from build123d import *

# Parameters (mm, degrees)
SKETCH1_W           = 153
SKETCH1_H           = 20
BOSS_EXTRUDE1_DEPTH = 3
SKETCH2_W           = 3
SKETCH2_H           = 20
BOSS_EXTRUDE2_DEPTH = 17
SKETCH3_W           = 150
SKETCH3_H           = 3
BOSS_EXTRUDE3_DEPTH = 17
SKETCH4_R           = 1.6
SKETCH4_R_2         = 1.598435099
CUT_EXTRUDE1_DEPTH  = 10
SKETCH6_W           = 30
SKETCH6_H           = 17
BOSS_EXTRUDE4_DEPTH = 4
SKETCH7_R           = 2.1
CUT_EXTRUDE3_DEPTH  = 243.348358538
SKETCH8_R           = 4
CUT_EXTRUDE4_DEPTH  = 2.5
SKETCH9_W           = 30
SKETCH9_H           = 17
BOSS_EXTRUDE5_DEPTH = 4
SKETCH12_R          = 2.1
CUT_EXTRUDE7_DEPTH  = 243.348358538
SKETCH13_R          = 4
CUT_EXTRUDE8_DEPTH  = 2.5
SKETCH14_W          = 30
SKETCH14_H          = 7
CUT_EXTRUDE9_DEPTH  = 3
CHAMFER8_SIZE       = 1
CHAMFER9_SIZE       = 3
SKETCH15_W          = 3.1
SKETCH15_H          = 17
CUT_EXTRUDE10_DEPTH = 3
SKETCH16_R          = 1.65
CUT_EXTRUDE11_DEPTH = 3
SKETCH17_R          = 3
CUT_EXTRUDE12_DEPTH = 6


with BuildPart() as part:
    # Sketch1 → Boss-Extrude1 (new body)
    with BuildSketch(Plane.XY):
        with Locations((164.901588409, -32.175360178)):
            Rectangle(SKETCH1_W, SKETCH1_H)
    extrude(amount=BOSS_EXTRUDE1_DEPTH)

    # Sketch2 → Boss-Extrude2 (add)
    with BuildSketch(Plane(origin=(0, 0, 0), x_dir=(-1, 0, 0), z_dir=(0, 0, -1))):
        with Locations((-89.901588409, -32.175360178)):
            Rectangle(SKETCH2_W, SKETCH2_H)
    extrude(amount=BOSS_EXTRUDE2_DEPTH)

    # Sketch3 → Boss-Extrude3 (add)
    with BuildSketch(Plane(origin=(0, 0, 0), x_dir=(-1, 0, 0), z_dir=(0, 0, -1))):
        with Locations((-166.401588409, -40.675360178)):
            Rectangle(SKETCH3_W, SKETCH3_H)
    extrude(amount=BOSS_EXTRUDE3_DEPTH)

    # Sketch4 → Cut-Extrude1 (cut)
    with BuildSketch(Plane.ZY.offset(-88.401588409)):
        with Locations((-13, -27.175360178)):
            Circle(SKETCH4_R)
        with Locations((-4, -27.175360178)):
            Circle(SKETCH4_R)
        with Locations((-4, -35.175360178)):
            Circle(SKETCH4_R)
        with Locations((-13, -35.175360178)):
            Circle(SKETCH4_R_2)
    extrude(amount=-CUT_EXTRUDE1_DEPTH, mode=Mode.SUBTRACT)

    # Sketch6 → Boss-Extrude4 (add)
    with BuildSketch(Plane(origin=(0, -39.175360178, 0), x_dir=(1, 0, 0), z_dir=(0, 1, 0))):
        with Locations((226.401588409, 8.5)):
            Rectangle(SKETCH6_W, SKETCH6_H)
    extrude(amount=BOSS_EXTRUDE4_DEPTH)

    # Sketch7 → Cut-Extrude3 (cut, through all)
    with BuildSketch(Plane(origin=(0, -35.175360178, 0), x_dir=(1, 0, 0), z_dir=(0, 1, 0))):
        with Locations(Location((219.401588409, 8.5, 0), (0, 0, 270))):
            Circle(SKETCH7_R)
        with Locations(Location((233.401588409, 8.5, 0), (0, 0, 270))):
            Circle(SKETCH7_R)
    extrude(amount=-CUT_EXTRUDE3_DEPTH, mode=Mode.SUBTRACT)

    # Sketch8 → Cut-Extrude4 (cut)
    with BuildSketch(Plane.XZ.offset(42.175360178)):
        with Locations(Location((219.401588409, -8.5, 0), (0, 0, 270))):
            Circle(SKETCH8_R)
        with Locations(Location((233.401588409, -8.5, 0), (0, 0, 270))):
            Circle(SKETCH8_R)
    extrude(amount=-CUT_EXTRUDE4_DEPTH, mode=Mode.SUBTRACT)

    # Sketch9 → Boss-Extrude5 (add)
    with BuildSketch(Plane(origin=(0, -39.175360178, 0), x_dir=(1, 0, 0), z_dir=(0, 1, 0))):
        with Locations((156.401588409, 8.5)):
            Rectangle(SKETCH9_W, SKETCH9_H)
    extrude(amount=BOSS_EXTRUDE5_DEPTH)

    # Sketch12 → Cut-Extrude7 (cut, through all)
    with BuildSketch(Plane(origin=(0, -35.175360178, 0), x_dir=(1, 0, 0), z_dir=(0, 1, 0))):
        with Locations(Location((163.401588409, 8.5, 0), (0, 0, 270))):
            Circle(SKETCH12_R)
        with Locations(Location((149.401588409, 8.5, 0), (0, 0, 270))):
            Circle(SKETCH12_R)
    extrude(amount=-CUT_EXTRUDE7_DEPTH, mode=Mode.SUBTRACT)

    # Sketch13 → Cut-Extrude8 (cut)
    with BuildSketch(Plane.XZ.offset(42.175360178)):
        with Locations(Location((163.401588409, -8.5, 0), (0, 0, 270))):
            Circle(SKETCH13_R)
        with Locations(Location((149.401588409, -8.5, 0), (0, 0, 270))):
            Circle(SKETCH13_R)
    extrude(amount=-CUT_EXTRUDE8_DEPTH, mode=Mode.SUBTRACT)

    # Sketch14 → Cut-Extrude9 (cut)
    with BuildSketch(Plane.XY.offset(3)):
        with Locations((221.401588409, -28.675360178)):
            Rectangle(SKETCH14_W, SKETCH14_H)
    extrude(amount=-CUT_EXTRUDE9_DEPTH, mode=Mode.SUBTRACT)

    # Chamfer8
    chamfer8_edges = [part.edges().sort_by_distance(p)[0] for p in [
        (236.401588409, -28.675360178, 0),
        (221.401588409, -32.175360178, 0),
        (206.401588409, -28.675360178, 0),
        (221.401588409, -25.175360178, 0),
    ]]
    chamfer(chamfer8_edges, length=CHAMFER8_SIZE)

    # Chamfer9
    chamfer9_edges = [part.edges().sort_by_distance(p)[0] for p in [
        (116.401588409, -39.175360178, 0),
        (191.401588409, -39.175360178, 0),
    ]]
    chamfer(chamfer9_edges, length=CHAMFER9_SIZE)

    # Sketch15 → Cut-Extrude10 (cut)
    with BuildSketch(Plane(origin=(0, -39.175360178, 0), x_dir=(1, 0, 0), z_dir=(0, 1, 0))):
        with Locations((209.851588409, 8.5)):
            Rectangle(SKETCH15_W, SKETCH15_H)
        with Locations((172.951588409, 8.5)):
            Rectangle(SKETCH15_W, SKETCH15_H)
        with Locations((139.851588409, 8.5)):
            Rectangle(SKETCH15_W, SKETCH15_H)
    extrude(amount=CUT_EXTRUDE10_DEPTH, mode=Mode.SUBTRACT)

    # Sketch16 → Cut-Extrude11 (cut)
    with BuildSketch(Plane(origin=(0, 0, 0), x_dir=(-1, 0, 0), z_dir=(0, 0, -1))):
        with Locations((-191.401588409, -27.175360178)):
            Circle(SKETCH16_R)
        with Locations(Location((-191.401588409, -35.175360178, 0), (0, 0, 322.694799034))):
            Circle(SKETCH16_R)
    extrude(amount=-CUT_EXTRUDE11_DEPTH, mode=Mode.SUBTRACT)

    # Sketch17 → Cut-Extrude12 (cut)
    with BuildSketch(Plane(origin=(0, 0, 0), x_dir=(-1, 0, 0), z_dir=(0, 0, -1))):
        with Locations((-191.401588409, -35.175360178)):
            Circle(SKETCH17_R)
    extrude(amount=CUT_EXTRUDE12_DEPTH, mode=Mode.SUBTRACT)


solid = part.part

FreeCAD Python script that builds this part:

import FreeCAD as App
import Part
import Sketcher

V = App.Vector


def edges_at(feature, points):
    """Names of the edges that pass closest to the given points."""
    edges = feature.Shape.Edges
    near = lambda p: min(range(len(edges)), key=lambda i: edges[i].distToShape(Part.Vertex(*p))[0])
    return sorted({f"Edge{near(p) + 1}" for p in points})


def add_polygon(sketch, points):
    """Adds a closed chain of lines whose ends are joined by coincident constraints."""
    first, n = sketch.GeometryCount, len(points)
    for a, b in zip(points, points[1:] + points[:1]):
        sketch.addGeometry(Part.LineSegment(App.Vector(*a, 0), App.Vector(*b, 0)), False)
    for i in range(n):
        sketch.addConstraint(Sketcher.Constraint("Coincident", first + i, 2, first + (i + 1) % n, 1))

doc = App.newDocument("Part")
params = doc.addObject("Spreadsheet::Sheet", "Params")
for row, (alias, value) in enumerate([
    ("sketch1_width", "153 mm"),
    ("sketch1_height", "20 mm"),
    ("pad1_length", "3 mm"),
    ("sketch2_width", "3 mm"),
    ("sketch2_height", "20 mm"),
    ("pad2_length", "17 mm"),
    ("sketch3_width", "150 mm"),
    ("sketch3_height", "3 mm"),
    ("pad3_length", "17 mm"),
    ("sketch4_diameter", "3.2 mm"),
    ("pocket1_length", "10 mm"),
    ("sketch5_width", "30 mm"),
    ("sketch5_height", "17 mm"),
    ("pad4_length", "4 mm"),
    ("sketch6_diameter", "4.2 mm"),
    ("sketch7_diameter", "8 mm"),
    ("pocket3_length", "2.5 mm"),
    ("sketch8_width", "30 mm"),
    ("sketch8_height", "17 mm"),
    ("pad5_length", "4 mm"),
    ("sketch9_diameter", "4.2 mm"),
    ("sketch10_diameter", "8 mm"),
    ("pocket5_length", "2.5 mm"),
    ("sketch11_width", "30 mm"),
    ("sketch11_height", "7 mm"),
    ("pocket6_length", "3 mm"),
    ("chamfer_size", "1 mm"),
    ("chamfer2_size", "3 mm"),
    ("sketch12_height", "17 mm"),
    ("sketch12_width", "3.1 mm"),
    ("pocket7_length", "3 mm"),
    ("sketch13_diameter", "3.3 mm"),
    ("pocket8_length", "3 mm"),
    ("sketch14_diameter", "6 mm"),
    ("pocket9_length", "6 mm"),
], start=1):
    params.set(f"A{row}", alias)
    params.set(f"B{row}", "=" + value)
    params.setAlias(f"B{row}", alias)

body = doc.addObject("PartDesign::Body", "Body")

# Sketch on XY plane
sketch1 = body.newObject("Sketcher::SketchObject", "Sketch")
sketch1.AttachmentSupport = (doc.getObject("XY_Plane"), [""])
sketch1.MapMode = "FlatFace"
add_polygon(sketch1, [(88.401588, -22.17536), (88.401588, -42.17536), (241.401588, -42.17536), (241.401588, -22.17536)])  # lines 0-3
sketch1.addConstraint(Sketcher.Constraint("Vertical", 0))
sketch1.addConstraint(Sketcher.Constraint("Horizontal", 1))
sketch1.addConstraint(Sketcher.Constraint("Vertical", 2))
sketch1.addConstraint(Sketcher.Constraint("Horizontal", 3))
sketch1.addConstraint(Sketcher.Constraint("DistanceX", 1, 1, 1, 2, 153.0))
sketch1.addConstraint(Sketcher.Constraint("DistanceY", 0, 2, 0, 1, 20.0))
sketch1.addConstraint(Sketcher.Constraint("DistanceX", -1, 1, 0, 2, 88.401588))
sketch1.addConstraint(Sketcher.Constraint("DistanceY", 0, 2, -1, 1, 42.17536))
sketch1.setExpression("Constraints[8]", "Params.sketch1_width")
sketch1.setExpression("Constraints[9]", "Params.sketch1_height")
pad1 = body.newObject("PartDesign::Pad", "Pad")
pad1.Profile = sketch1
pad1.setExpression("Length", "Params.pad1_length")

# Sketch on XY plane
sketch2 = body.newObject("Sketcher::SketchObject", "Sketch001")
sketch2.AttachmentSupport = (doc.getObject("XY_Plane"), [""])
sketch2.MapMode = "FlatFace"
add_polygon(sketch2, [(91.401588, -22.17536), (91.401588, -42.17536), (88.401588, -42.17536), (88.401588, -22.17536)])  # lines 0-3
sketch2.addConstraint(Sketcher.Constraint("Vertical", 0))
sketch2.addConstraint(Sketcher.Constraint("Horizontal", 1))
sketch2.addConstraint(Sketcher.Constraint("Vertical", 2))
sketch2.addConstraint(Sketcher.Constraint("Horizontal", 3))
sketch2.addConstraint(Sketcher.Constraint("DistanceX", 1, 2, 1, 1, 3.0))
sketch2.addConstraint(Sketcher.Constraint("DistanceY", 0, 2, 0, 1, 20.0))
sketch2.addConstraint(Sketcher.Constraint("DistanceX", -1, 1, 0, 2, 91.401588))
sketch2.addConstraint(Sketcher.Constraint("DistanceY", 0, 2, -1, 1, 42.17536))
sketch2.setExpression("Constraints[8]", "Params.sketch2_width")
sketch2.setExpression("Constraints[9]", "Params.sketch2_height")
pad2 = body.newObject("PartDesign::Pad", "Pad001")
pad2.Profile = sketch2
pad2.setExpression("Length", "Params.pad2_length")
pad2.Reversed = True

# Sketch on XY plane
sketch3 = body.newObject("Sketcher::SketchObject", "Sketch002")
sketch3.AttachmentSupport = (doc.getObject("XY_Plane"), [""])
sketch3.MapMode = "FlatFace"
add_polygon(sketch3, [(241.401588, -39.17536), (241.401588, -42.17536), (91.401588, -42.17536), (91.401588, -39.17536)])  # lines 0-3
sketch3.addConstraint(Sketcher.Constraint("Vertical", 0))
sketch3.addConstraint(Sketcher.Constraint("Horizontal", 1))
sketch3.addConstraint(Sketcher.Constraint("Vertical", 2))
sketch3.addConstraint(Sketcher.Constraint("Horizontal", 3))
sketch3.addConstraint(Sketcher.Constraint("DistanceX", 1, 2, 1, 1, 150.0))
sketch3.addConstraint(Sketcher.Constraint("DistanceY", 0, 2, 0, 1, 3.0))
sketch3.addConstraint(Sketcher.Constraint("DistanceX", -1, 1, 0, 2, 241.401588))
sketch3.addConstraint(Sketcher.Constraint("DistanceY", 0, 2, -1, 1, 42.17536))
sketch3.setExpression("Constraints[8]", "Params.sketch3_width")
sketch3.setExpression("Constraints[9]", "Params.sketch3_height")
pad3 = body.newObject("PartDesign::Pad", "Pad002")
pad3.Profile = sketch3
pad3.setExpression("Length", "Params.pad3_length")
pad3.Reversed = True

# Sketch on YZ plane
sketch4 = body.newObject("Sketcher::SketchObject", "Sketch003")
sketch4.AttachmentSupport = (doc.getObject("YZ_Plane"), [""])
sketch4.MapMode = "FlatFace"
sketch4.AttachmentOffset = App.Placement(V(0, 0, 88.401588), App.Rotation())
sketch4.addGeometry(Part.Circle(V(-27.17536, -13, 0), V(0, 0, 1), 1.6), False)
sketch4.addGeometry(Part.Circle(V(-27.17536, -4, 0), V(0, 0, 1), 1.6), False)
sketch4.addGeometry(Part.Circle(V(-35.17536, -4, 0), V(0, 0, 1), 1.6), False)
sketch4.addGeometry(Part.Circle(V(-35.17536, -13, 0), V(0, 0, 1), 1.598435), False)
sketch4.addConstraint(Sketcher.Constraint("Equal", 0, 1))
sketch4.addConstraint(Sketcher.Constraint("Equal", 1, 2))
sketch4.addConstraint(Sketcher.Constraint("Horizontal", 1, 3, 2, 3))
sketch4.addConstraint(Sketcher.Constraint("Horizontal", 0, 3, 3, 3))
sketch4.addConstraint(Sketcher.Constraint("Vertical", 0, 3, 1, 3))
sketch4.addConstraint(Sketcher.Constraint("Vertical", 2, 3, 3, 3))
sketch4.addConstraint(Sketcher.Constraint("Diameter", 0, 3.2))
sketch4.addConstraint(Sketcher.Constraint("DistanceY", 0, 3, -1, 1, 13.0))
sketch4.addConstraint(Sketcher.Constraint("DistanceY", 1, 3, -1, 1, 4.0))
sketch4.addConstraint(Sketcher.Constraint("DistanceX", 2, 3, 1, 3, 8.0))
sketch4.addConstraint(Sketcher.Constraint("Diameter", 3, 3.19687))
sketch4.addConstraint(Sketcher.Constraint("DistanceX", 0, 3, -1, 1, 27.17536))
sketch4.setExpression("Constraints[6]", "Params.sketch4_diameter")
pocket1 = body.newObject("PartDesign::Pocket", "Pocket")
pocket1.Profile = sketch4
pocket1.setExpression("Length", "Params.pocket1_length")
pocket1.Reversed = True

# Sketch on XZ plane
sketch5 = body.newObject("Sketcher::SketchObject", "Sketch004")
sketch5.AttachmentSupport = (doc.getObject("XZ_Plane"), [""])
sketch5.MapMode = "FlatFace"
sketch5.AttachmentOffset = App.Placement(V(0, 0, 39.17536), App.Rotation())
add_polygon(sketch5, [(211.401588, -17), (211.401588, 0), (241.401588, 0), (241.401588, -17)])  # lines 0-3
sketch5.addConstraint(Sketcher.Constraint("Vertical", 0))
sketch5.addConstraint(Sketcher.Constraint("Horizontal", 1))
sketch5.addConstraint(Sketcher.Constraint("Vertical", 2))
sketch5.addConstraint(Sketcher.Constraint("Horizontal", 3))
sketch5.addConstraint(Sketcher.Constraint("PointOnObject", 0, 2, -1))
sketch5.addConstraint(Sketcher.Constraint("DistanceX", 1, 1, 1, 2, 30.0))
sketch5.addConstraint(Sketcher.Constraint("DistanceY", 0, 1, 0, 2, 17.0))
sketch5.addConstraint(Sketcher.Constraint("DistanceX", -1, 1, 0, 2, 211.401588))
sketch5.setExpression("Constraints[9]", "Params.sketch5_width")
sketch5.setExpression("Constraints[10]", "Params.sketch5_height")
pad4 = body.newObject("PartDesign::Pad", "Pad003")
pad4.Profile = sketch5
pad4.setExpression("Length", "Params.pad4_length")
pad4.Reversed = True

# Sketch on XZ plane
sketch6 = body.newObject("Sketcher::SketchObject", "Sketch005")
sketch6.AttachmentSupport = (doc.getObject("XZ_Plane"), [""])
sketch6.MapMode = "FlatFace"
sketch6.AttachmentOffset = App.Placement(V(0, 0, 35.17536), App.Rotation())
sketch6.addGeometry(Part.Circle(V(219.401588, -8.5, 0), V(0, 0, 1), 2.1), False)
sketch6.addGeometry(Part.Circle(V(233.401588, -8.5, 0), V(0, 0, 1), 2.1), False)
sketch6.addConstraint(Sketcher.Constraint("Equal", 0, 1))
sketch6.addConstraint(Sketcher.Constraint("Horizontal", 0, 3, 1, 3))
sketch6.addConstraint(Sketcher.Constraint("Diameter", 0, 4.2))
sketch6.addConstraint(Sketcher.Constraint("DistanceX", 0, 3, 1, 3, 14.0))
sketch6.addConstraint(Sketcher.Constraint("DistanceY", 0, 3, -1, 1, 8.5))
sketch6.addConstraint(Sketcher.Constraint("DistanceX", -1, 1, 0, 3, 219.401588))
sketch6.setExpression("Constraints[2]", "Params.sketch6_diameter")
pocket2 = body.newObject("PartDesign::Pocket", "Pocket001")
pocket2.Profile = sketch6
pocket2.Type = "ThroughAll"
pocket2.Reversed = True

# Sketch on XZ plane
sketch7 = body.newObject("Sketcher::SketchObject", "Sketch006")
sketch7.AttachmentSupport = (doc.getObject("XZ_Plane"), [""])
sketch7.MapMode = "FlatFace"
sketch7.AttachmentOffset = App.Placement(V(0, 0, 42.17536), App.Rotation())
sketch7.addGeometry(Part.Circle(V(219.401588, -8.5, 0), V(0, 0, 1), 4), False)
sketch7.addGeometry(Part.Circle(V(233.401588, -8.5, 0), V(0, 0, 1), 4), False)
sketch7.addConstraint(Sketcher.Constraint("Equal", 0, 1))
sketch7.addConstraint(Sketcher.Constraint("Horizontal", 0, 3, 1, 3))
sketch7.addConstraint(Sketcher.Constraint("Diameter", 0, 8.0))
sketch7.addConstraint(Sketcher.Constraint("DistanceX", 0, 3, 1, 3, 14.0))
sketch7.addConstraint(Sketcher.Constraint("DistanceY", 0, 3, -1, 1, 8.5))
sketch7.addConstraint(Sketcher.Constraint("DistanceX", -1, 1, 0, 3, 219.401588))
sketch7.setExpression("Constraints[2]", "Params.sketch7_diameter")
pocket3 = body.newObject("PartDesign::Pocket", "Pocket002")
pocket3.Profile = sketch7
pocket3.setExpression("Length", "Params.pocket3_length")

# Sketch on XZ plane
sketch8 = body.newObject("Sketcher::SketchObject", "Sketch007")
sketch8.AttachmentSupport = (doc.getObject("XZ_Plane"), [""])
sketch8.MapMode = "FlatFace"
sketch8.AttachmentOffset = App.Placement(V(0, 0, 39.17536), App.Rotation())
add_polygon(sketch8, [(141.401588, -17), (141.401588, 0), (171.401588, 0), (171.401588, -17)])  # lines 0-3
sketch8.addConstraint(Sketcher.Constraint("Vertical", 0))
sketch8.addConstraint(Sketcher.Constraint("Horizontal", 1))
sketch8.addConstraint(Sketcher.Constraint("Vertical", 2))
sketch8.addConstraint(Sketcher.Constraint("Horizontal", 3))
sketch8.addConstraint(Sketcher.Constraint("PointOnObject", 0, 2, -1))
sketch8.addConstraint(Sketcher.Constraint("DistanceX", 1, 1, 1, 2, 30.0))
sketch8.addConstraint(Sketcher.Constraint("DistanceY", 0, 1, 0, 2, 17.0))
sketch8.addConstraint(Sketcher.Constraint("DistanceX", -1, 1, 0, 2, 141.401588))
sketch8.setExpression("Constraints[9]", "Params.sketch8_width")
sketch8.setExpression("Constraints[10]", "Params.sketch8_height")
pad5 = body.newObject("PartDesign::Pad", "Pad004")
pad5.Profile = sketch8
pad5.setExpression("Length", "Params.pad5_length")
pad5.Reversed = True

# Sketch on XZ plane
sketch9 = body.newObject("Sketcher::SketchObject", "Sketch008")
sketch9.AttachmentSupport = (doc.getObject("XZ_Plane"), [""])
sketch9.MapMode = "FlatFace"
sketch9.AttachmentOffset = App.Placement(V(0, 0, 35.17536), App.Rotation())
sketch9.addGeometry(Part.Circle(V(163.401588, -8.5, 0), V(0, 0, 1), 2.1), False)
sketch9.addGeometry(Part.Circle(V(149.401588, -8.5, 0), V(0, 0, 1), 2.1), False)
sketch9.addConstraint(Sketcher.Constraint("Equal", 0, 1))
sketch9.addConstraint(Sketcher.Constraint("Horizontal", 0, 3, 1, 3))
sketch9.addConstraint(Sketcher.Constraint("Diameter", 0, 4.2))
sketch9.addConstraint(Sketcher.Constraint("DistanceX", 1, 3, 0, 3, 14.0))
sketch9.addConstraint(Sketcher.Constraint("DistanceY", 0, 3, -1, 1, 8.5))
sketch9.addConstraint(Sketcher.Constraint("DistanceX", -1, 1, 0, 3, 163.401588))
sketch9.setExpression("Constraints[2]", "Params.sketch9_diameter")
pocket4 = body.newObject("PartDesign::Pocket", "Pocket003")
pocket4.Profile = sketch9
pocket4.Type = "ThroughAll"
pocket4.Reversed = True

# Sketch on XZ plane
sketch10 = body.newObject("Sketcher::SketchObject", "Sketch009")
sketch10.AttachmentSupport = (doc.getObject("XZ_Plane"), [""])
sketch10.MapMode = "FlatFace"
sketch10.AttachmentOffset = App.Placement(V(0, 0, 42.17536), App.Rotation())
sketch10.addGeometry(Part.Circle(V(163.401588, -8.5, 0), V(0, 0, 1), 4), False)
sketch10.addGeometry(Part.Circle(V(149.401588, -8.5, 0), V(0, 0, 1), 4), False)
sketch10.addConstraint(Sketcher.Constraint("Equal", 0, 1))
sketch10.addConstraint(Sketcher.Constraint("Horizontal", 0, 3, 1, 3))
sketch10.addConstraint(Sketcher.Constraint("Diameter", 0, 8.0))
sketch10.addConstraint(Sketcher.Constraint("DistanceX", 1, 3, 0, 3, 14.0))
sketch10.addConstraint(Sketcher.Constraint("DistanceY", 0, 3, -1, 1, 8.5))
sketch10.addConstraint(Sketcher.Constraint("DistanceX", -1, 1, 0, 3, 163.401588))
sketch10.setExpression("Constraints[2]", "Params.sketch10_diameter")
pocket5 = body.newObject("PartDesign::Pocket", "Pocket004")
pocket5.Profile = sketch10
pocket5.setExpression("Length", "Params.pocket5_length")

# Sketch on XY plane
sketch11 = body.newObject("Sketcher::SketchObject", "Sketch010")
sketch11.AttachmentSupport = (doc.getObject("XY_Plane"), [""])
sketch11.MapMode = "FlatFace"
sketch11.AttachmentOffset = App.Placement(V(0, 0, 3), App.Rotation())
add_polygon(sketch11, [(206.401588, -25.17536), (206.401588, -32.17536), (236.401588, -32.17536), (236.401588, -25.17536)])  # lines 0-3
sketch11.addConstraint(Sketcher.Constraint("Vertical", 0))
sketch11.addConstraint(Sketcher.Constraint("Horizontal", 1))
sketch11.addConstraint(Sketcher.Constraint("Vertical", 2))
sketch11.addConstraint(Sketcher.Constraint("Horizontal", 3))
sketch11.addConstraint(Sketcher.Constraint("DistanceX", 1, 1, 1, 2, 30.0))
sketch11.addConstraint(Sketcher.Constraint("DistanceY", 0, 2, 0, 1, 7.0))
sketch11.addConstraint(Sketcher.Constraint("DistanceX", -1, 1, 0, 2, 206.401588))
sketch11.addConstraint(Sketcher.Constraint("DistanceY", 0, 2, -1, 1, 32.17536))
sketch11.setExpression("Constraints[8]", "Params.sketch11_width")
sketch11.setExpression("Constraints[9]", "Params.sketch11_height")
pocket6 = body.newObject("PartDesign::Pocket", "Pocket005")
pocket6.Profile = sketch11
pocket6.setExpression("Length", "Params.pocket6_length")
doc.recompute()

chamfer = body.newObject("PartDesign::Chamfer", "Chamfer")
chamfer.Base = (pocket6, edges_at(pocket6, [
    (236.402, -28.675, 0),
    (221.402, -32.175, 0),
    (206.402, -28.675, 0),
    (221.402, -25.175, 0),
]))
chamfer.setExpression("Size", "Params.chamfer_size")
doc.recompute()

chamfer2 = body.newObject("PartDesign::Chamfer", "Chamfer001")
chamfer2.Base = (chamfer, edges_at(chamfer, [(116.402, -39.175, 0), (191.402, -39.175, 0)]))
chamfer2.setExpression("Size", "Params.chamfer2_size")

# Sketch on XZ plane
sketch12 = body.newObject("Sketcher::SketchObject", "Sketch011")
sketch12.AttachmentSupport = (doc.getObject("XZ_Plane"), [""])
sketch12.MapMode = "FlatFace"
sketch12.AttachmentOffset = App.Placement(V(0, 0, 39.17536), App.Rotation())
add_polygon(sketch12, [(208.301588, -17), (208.301588, 0), (211.401588, 0), (211.401588, -17)])  # lines 0-3
add_polygon(sketch12, [(171.401588, -17), (171.401588, 0), (174.501588, 0), (174.501588, -17)])  # lines 4-7
add_polygon(sketch12, [(138.301588, -17), (138.301588, 0), (141.401588, 0), (141.401588, -17)])  # lines 8-11
sketch12.addConstraint(Sketcher.Constraint("Vertical", 0))
sketch12.addConstraint(Sketcher.Constraint("Horizontal", 1))
sketch12.addConstraint(Sketcher.Constraint("Vertical", 2))
sketch12.addConstraint(Sketcher.Constraint("Horizontal", 3))
sketch12.addConstraint(Sketcher.Constraint("Vertical", 4))
sketch12.addConstraint(Sketcher.Constraint("Horizontal", 5))
sketch12.addConstraint(Sketcher.Constraint("Vertical", 6))
sketch12.addConstraint(Sketcher.Constraint("Horizontal", 7))
sketch12.addConstraint(Sketcher.Constraint("Vertical", 8))
sketch12.addConstraint(Sketcher.Constraint("Horizontal", 9))
sketch12.addConstraint(Sketcher.Constraint("Vertical", 10))
sketch12.addConstraint(Sketcher.Constraint("Horizontal", 11))
sketch12.addConstraint(Sketcher.Constraint("PointOnObject", 0, 2, -1))
sketch12.addConstraint(Sketcher.Constraint("PointOnObject", 4, 2, -1))
sketch12.addConstraint(Sketcher.Constraint("PointOnObject", 8, 2, -1))
sketch12.addConstraint(Sketcher.Constraint("Horizontal", 3, 2, 6, 2))
sketch12.addConstraint(Sketcher.Constraint("Horizontal", 7, 2, 10, 2))
sketch12.addConstraint(Sketcher.Constraint("Equal", 3, 5))
sketch12.addConstraint(Sketcher.Constraint("Equal", 7, 9))
sketch12.addConstraint(Sketcher.Constraint("DistanceY", 0, 1, 0, 2, 17.0))
sketch12.addConstraint(Sketcher.Constraint("DistanceX", 1, 1, 1, 2, 3.1))
sketch12.addConstraint(Sketcher.Constraint("DistanceX", 4, 2, 1, 2, 40.0))
sketch12.addConstraint(Sketcher.Constraint("DistanceX", 8, 2, 0, 2, 70.0))
sketch12.addConstraint(Sketcher.Constraint("DistanceX", -1, 1, 0, 2, 208.301588))
sketch12.setExpression("Constraints[31]", "Params.sketch12_height")
sketch12.setExpression("Constraints[32]", "Params.sketch12_width")
pocket7 = body.newObject("PartDesign::Pocket", "Pocket006")
pocket7.Profile = sketch12
pocket7.setExpression("Length", "Params.pocket7_length")

# Sketch on XY plane
sketch13 = body.newObject("Sketcher::SketchObject", "Sketch012")
sketch13.AttachmentSupport = (doc.getObject("XY_Plane"), [""])
sketch13.MapMode = "FlatFace"
sketch13.addGeometry(Part.Circle(V(191.401588, -27.17536, 0), V(0, 0, 1), 1.65), False)
sketch13.addGeometry(Part.Circle(V(191.401588, -35.17536, 0), V(0, 0, 1), 1.65), False)
sketch13.addConstraint(Sketcher.Constraint("Equal", 0, 1))
sketch13.addConstraint(Sketcher.Constraint("Vertical", 0, 3, 1, 3))
sketch13.addConstraint(Sketcher.Constraint("Diameter", 0, 3.3))
sketch13.addConstraint(Sketcher.Constraint("DistanceY", 1, 3, 0, 3, 8.0))
sketch13.addConstraint(Sketcher.Constraint("DistanceX", -1, 1, 0, 3, 191.401588))
sketch13.addConstraint(Sketcher.Constraint("DistanceY", 0, 3, -1, 1, 27.17536))
sketch13.setExpression("Constraints[2]", "Params.sketch13_diameter")
pocket8 = body.newObject("PartDesign::Pocket", "Pocket007")
pocket8.Profile = sketch13
pocket8.setExpression("Length", "Params.pocket8_length")
pocket8.Reversed = True

# Sketch on XY plane
sketch14 = body.newObject("Sketcher::SketchObject", "Sketch013")
sketch14.AttachmentSupport = (doc.getObject("XY_Plane"), [""])
sketch14.MapMode = "FlatFace"
sketch14.addGeometry(Part.Circle(V(191.401588, -35.17536, 0), V(0, 0, 1), 3), False)
sketch14.addConstraint(Sketcher.Constraint("Diameter", 0, 6.0))
sketch14.addConstraint(Sketcher.Constraint("DistanceX", -1, 1, 0, 3, 191.401588))
sketch14.addConstraint(Sketcher.Constraint("DistanceY", 0, 3, -1, 1, 35.17536))
sketch14.setExpression("Constraints[0]", "Params.sketch14_diameter")
pocket9 = body.newObject("PartDesign::Pocket", "Pocket008")
pocket9.Profile = sketch14
pocket9.setExpression("Length", "Params.pocket9_length")

doc.recompute()
